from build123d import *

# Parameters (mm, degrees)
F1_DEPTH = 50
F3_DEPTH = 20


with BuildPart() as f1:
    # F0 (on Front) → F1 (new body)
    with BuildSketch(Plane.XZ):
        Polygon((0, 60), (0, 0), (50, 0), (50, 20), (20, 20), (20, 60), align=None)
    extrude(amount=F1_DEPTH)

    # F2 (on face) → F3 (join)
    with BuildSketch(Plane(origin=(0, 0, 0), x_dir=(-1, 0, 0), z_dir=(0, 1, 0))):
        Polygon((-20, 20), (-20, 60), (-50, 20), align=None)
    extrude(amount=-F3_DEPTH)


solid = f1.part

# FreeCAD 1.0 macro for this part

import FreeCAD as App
import Part
import Sketcher

V = App.Vector
Q = App.Units.Quantity

doc = App.newDocument("Part")
body = doc.addObject("PartDesign::Body", "Body")

sketch1 = body.newObject("Sketcher::SketchObject", "Sketch")
sketch1.AttachmentSupport = (doc.getObject("XZ_Plane"), [""])
sketch1.MapMode = "FlatFace"
sketch1.addGeometry([
    Part.LineSegment(V(0, 60, 0), V(0, 0, 0)),
    Part.LineSegment(V(0, 0, 0), V(50, 0, 0)),
    Part.LineSegment(V(50, 0, 0), V(50, 20, 0)),
    Part.LineSegment(V(50, 20, 0), V(20, 20, 0)),
    Part.LineSegment(V(20, 20, 0), V(20, 60, 0)),
    Part.LineSegment(V(20, 60, 0), V(0, 60, 0)),
], False)
sketch1.addConstraint([
    Sketcher.Constraint("Coincident", 0, 2, 1, 1),
    Sketcher.Constraint("Coincident", 1, 2, 2, 1),
    Sketcher.Constraint("Coincident", 2, 2, 3, 1),
    Sketcher.Constraint("Coincident", 3, 2, 4, 1),
    Sketcher.Constraint("Coincident", 4, 2, 5, 1),
    Sketcher.Constraint("Coincident", 5, 2, 0, 1),
    Sketcher.Constraint("Vertical", 0),
    Sketcher.Constraint("Horizontal", 1),
    Sketcher.Constraint("Vertical", 2),
    Sketcher.Constraint("Horizontal", 3),
    Sketcher.Constraint("Vertical", 4),
    Sketcher.Constraint("Horizontal", 5),
    Sketcher.Constraint("Coincident", 0, 2, -1, 1),
    Sketcher.Constraint("Equal", 5, 2),
    Sketcher.Constraint("DistanceX", 1, 1, 1, 2, Q("50 mm")),
    Sketcher.Constraint("DistanceX", 3, 2, 3, 1, Q("30 mm")),
    Sketcher.Constraint("DistanceY", 0, 2, 0, 1, Q("60 mm")),
])
pad1 = body.newObject("PartDesign::Pad", "Pad")
pad1.Profile = sketch1
pad1.Length = 50

sketch2 = body.newObject("Sketcher::SketchObject", "Sketch001")
sketch2.AttachmentSupport = (doc.getObject("XZ_Plane"), [""])
sketch2.MapMode = "FlatFace"
sketch2.addGeometry([
    Part.LineSegment(V(20, 20, 0), V(20, 60, 0)),
    Part.LineSegment(V(20, 60, 0), V(50, 20, 0)),
    Part.LineSegment(V(50, 20, 0), V(20, 20, 0)),
], False)
sketch2.addConstraint([
    Sketcher.Constraint("Coincident", 0, 2, 1, 1),
    Sketcher.Constraint("Coincident", 1, 2, 2, 1),
    Sketcher.Constraint("Coincident", 2, 2, 0, 1),
    Sketcher.Constraint("Vertical", 0),
    Sketcher.Constraint("Horizontal", 2),
    Sketcher.Constraint("DistanceX", 2, 2, 2, 1, Q("30 mm")),
    Sketcher.Constraint("DistanceY", 0, 1, 0, 2, Q("40 mm")),
    Sketcher.Constraint("DistanceX", -1, 1, 0, 2, Q("20 mm")),
    Sketcher.Constraint("DistanceY", -1, 1, 0, 2, Q("60 mm")),
])
pad2 = body.newObject("PartDesign::Pad", "Pad001")
pad2.Profile = sketch2
pad2.Length = 20

doc.recompute()
